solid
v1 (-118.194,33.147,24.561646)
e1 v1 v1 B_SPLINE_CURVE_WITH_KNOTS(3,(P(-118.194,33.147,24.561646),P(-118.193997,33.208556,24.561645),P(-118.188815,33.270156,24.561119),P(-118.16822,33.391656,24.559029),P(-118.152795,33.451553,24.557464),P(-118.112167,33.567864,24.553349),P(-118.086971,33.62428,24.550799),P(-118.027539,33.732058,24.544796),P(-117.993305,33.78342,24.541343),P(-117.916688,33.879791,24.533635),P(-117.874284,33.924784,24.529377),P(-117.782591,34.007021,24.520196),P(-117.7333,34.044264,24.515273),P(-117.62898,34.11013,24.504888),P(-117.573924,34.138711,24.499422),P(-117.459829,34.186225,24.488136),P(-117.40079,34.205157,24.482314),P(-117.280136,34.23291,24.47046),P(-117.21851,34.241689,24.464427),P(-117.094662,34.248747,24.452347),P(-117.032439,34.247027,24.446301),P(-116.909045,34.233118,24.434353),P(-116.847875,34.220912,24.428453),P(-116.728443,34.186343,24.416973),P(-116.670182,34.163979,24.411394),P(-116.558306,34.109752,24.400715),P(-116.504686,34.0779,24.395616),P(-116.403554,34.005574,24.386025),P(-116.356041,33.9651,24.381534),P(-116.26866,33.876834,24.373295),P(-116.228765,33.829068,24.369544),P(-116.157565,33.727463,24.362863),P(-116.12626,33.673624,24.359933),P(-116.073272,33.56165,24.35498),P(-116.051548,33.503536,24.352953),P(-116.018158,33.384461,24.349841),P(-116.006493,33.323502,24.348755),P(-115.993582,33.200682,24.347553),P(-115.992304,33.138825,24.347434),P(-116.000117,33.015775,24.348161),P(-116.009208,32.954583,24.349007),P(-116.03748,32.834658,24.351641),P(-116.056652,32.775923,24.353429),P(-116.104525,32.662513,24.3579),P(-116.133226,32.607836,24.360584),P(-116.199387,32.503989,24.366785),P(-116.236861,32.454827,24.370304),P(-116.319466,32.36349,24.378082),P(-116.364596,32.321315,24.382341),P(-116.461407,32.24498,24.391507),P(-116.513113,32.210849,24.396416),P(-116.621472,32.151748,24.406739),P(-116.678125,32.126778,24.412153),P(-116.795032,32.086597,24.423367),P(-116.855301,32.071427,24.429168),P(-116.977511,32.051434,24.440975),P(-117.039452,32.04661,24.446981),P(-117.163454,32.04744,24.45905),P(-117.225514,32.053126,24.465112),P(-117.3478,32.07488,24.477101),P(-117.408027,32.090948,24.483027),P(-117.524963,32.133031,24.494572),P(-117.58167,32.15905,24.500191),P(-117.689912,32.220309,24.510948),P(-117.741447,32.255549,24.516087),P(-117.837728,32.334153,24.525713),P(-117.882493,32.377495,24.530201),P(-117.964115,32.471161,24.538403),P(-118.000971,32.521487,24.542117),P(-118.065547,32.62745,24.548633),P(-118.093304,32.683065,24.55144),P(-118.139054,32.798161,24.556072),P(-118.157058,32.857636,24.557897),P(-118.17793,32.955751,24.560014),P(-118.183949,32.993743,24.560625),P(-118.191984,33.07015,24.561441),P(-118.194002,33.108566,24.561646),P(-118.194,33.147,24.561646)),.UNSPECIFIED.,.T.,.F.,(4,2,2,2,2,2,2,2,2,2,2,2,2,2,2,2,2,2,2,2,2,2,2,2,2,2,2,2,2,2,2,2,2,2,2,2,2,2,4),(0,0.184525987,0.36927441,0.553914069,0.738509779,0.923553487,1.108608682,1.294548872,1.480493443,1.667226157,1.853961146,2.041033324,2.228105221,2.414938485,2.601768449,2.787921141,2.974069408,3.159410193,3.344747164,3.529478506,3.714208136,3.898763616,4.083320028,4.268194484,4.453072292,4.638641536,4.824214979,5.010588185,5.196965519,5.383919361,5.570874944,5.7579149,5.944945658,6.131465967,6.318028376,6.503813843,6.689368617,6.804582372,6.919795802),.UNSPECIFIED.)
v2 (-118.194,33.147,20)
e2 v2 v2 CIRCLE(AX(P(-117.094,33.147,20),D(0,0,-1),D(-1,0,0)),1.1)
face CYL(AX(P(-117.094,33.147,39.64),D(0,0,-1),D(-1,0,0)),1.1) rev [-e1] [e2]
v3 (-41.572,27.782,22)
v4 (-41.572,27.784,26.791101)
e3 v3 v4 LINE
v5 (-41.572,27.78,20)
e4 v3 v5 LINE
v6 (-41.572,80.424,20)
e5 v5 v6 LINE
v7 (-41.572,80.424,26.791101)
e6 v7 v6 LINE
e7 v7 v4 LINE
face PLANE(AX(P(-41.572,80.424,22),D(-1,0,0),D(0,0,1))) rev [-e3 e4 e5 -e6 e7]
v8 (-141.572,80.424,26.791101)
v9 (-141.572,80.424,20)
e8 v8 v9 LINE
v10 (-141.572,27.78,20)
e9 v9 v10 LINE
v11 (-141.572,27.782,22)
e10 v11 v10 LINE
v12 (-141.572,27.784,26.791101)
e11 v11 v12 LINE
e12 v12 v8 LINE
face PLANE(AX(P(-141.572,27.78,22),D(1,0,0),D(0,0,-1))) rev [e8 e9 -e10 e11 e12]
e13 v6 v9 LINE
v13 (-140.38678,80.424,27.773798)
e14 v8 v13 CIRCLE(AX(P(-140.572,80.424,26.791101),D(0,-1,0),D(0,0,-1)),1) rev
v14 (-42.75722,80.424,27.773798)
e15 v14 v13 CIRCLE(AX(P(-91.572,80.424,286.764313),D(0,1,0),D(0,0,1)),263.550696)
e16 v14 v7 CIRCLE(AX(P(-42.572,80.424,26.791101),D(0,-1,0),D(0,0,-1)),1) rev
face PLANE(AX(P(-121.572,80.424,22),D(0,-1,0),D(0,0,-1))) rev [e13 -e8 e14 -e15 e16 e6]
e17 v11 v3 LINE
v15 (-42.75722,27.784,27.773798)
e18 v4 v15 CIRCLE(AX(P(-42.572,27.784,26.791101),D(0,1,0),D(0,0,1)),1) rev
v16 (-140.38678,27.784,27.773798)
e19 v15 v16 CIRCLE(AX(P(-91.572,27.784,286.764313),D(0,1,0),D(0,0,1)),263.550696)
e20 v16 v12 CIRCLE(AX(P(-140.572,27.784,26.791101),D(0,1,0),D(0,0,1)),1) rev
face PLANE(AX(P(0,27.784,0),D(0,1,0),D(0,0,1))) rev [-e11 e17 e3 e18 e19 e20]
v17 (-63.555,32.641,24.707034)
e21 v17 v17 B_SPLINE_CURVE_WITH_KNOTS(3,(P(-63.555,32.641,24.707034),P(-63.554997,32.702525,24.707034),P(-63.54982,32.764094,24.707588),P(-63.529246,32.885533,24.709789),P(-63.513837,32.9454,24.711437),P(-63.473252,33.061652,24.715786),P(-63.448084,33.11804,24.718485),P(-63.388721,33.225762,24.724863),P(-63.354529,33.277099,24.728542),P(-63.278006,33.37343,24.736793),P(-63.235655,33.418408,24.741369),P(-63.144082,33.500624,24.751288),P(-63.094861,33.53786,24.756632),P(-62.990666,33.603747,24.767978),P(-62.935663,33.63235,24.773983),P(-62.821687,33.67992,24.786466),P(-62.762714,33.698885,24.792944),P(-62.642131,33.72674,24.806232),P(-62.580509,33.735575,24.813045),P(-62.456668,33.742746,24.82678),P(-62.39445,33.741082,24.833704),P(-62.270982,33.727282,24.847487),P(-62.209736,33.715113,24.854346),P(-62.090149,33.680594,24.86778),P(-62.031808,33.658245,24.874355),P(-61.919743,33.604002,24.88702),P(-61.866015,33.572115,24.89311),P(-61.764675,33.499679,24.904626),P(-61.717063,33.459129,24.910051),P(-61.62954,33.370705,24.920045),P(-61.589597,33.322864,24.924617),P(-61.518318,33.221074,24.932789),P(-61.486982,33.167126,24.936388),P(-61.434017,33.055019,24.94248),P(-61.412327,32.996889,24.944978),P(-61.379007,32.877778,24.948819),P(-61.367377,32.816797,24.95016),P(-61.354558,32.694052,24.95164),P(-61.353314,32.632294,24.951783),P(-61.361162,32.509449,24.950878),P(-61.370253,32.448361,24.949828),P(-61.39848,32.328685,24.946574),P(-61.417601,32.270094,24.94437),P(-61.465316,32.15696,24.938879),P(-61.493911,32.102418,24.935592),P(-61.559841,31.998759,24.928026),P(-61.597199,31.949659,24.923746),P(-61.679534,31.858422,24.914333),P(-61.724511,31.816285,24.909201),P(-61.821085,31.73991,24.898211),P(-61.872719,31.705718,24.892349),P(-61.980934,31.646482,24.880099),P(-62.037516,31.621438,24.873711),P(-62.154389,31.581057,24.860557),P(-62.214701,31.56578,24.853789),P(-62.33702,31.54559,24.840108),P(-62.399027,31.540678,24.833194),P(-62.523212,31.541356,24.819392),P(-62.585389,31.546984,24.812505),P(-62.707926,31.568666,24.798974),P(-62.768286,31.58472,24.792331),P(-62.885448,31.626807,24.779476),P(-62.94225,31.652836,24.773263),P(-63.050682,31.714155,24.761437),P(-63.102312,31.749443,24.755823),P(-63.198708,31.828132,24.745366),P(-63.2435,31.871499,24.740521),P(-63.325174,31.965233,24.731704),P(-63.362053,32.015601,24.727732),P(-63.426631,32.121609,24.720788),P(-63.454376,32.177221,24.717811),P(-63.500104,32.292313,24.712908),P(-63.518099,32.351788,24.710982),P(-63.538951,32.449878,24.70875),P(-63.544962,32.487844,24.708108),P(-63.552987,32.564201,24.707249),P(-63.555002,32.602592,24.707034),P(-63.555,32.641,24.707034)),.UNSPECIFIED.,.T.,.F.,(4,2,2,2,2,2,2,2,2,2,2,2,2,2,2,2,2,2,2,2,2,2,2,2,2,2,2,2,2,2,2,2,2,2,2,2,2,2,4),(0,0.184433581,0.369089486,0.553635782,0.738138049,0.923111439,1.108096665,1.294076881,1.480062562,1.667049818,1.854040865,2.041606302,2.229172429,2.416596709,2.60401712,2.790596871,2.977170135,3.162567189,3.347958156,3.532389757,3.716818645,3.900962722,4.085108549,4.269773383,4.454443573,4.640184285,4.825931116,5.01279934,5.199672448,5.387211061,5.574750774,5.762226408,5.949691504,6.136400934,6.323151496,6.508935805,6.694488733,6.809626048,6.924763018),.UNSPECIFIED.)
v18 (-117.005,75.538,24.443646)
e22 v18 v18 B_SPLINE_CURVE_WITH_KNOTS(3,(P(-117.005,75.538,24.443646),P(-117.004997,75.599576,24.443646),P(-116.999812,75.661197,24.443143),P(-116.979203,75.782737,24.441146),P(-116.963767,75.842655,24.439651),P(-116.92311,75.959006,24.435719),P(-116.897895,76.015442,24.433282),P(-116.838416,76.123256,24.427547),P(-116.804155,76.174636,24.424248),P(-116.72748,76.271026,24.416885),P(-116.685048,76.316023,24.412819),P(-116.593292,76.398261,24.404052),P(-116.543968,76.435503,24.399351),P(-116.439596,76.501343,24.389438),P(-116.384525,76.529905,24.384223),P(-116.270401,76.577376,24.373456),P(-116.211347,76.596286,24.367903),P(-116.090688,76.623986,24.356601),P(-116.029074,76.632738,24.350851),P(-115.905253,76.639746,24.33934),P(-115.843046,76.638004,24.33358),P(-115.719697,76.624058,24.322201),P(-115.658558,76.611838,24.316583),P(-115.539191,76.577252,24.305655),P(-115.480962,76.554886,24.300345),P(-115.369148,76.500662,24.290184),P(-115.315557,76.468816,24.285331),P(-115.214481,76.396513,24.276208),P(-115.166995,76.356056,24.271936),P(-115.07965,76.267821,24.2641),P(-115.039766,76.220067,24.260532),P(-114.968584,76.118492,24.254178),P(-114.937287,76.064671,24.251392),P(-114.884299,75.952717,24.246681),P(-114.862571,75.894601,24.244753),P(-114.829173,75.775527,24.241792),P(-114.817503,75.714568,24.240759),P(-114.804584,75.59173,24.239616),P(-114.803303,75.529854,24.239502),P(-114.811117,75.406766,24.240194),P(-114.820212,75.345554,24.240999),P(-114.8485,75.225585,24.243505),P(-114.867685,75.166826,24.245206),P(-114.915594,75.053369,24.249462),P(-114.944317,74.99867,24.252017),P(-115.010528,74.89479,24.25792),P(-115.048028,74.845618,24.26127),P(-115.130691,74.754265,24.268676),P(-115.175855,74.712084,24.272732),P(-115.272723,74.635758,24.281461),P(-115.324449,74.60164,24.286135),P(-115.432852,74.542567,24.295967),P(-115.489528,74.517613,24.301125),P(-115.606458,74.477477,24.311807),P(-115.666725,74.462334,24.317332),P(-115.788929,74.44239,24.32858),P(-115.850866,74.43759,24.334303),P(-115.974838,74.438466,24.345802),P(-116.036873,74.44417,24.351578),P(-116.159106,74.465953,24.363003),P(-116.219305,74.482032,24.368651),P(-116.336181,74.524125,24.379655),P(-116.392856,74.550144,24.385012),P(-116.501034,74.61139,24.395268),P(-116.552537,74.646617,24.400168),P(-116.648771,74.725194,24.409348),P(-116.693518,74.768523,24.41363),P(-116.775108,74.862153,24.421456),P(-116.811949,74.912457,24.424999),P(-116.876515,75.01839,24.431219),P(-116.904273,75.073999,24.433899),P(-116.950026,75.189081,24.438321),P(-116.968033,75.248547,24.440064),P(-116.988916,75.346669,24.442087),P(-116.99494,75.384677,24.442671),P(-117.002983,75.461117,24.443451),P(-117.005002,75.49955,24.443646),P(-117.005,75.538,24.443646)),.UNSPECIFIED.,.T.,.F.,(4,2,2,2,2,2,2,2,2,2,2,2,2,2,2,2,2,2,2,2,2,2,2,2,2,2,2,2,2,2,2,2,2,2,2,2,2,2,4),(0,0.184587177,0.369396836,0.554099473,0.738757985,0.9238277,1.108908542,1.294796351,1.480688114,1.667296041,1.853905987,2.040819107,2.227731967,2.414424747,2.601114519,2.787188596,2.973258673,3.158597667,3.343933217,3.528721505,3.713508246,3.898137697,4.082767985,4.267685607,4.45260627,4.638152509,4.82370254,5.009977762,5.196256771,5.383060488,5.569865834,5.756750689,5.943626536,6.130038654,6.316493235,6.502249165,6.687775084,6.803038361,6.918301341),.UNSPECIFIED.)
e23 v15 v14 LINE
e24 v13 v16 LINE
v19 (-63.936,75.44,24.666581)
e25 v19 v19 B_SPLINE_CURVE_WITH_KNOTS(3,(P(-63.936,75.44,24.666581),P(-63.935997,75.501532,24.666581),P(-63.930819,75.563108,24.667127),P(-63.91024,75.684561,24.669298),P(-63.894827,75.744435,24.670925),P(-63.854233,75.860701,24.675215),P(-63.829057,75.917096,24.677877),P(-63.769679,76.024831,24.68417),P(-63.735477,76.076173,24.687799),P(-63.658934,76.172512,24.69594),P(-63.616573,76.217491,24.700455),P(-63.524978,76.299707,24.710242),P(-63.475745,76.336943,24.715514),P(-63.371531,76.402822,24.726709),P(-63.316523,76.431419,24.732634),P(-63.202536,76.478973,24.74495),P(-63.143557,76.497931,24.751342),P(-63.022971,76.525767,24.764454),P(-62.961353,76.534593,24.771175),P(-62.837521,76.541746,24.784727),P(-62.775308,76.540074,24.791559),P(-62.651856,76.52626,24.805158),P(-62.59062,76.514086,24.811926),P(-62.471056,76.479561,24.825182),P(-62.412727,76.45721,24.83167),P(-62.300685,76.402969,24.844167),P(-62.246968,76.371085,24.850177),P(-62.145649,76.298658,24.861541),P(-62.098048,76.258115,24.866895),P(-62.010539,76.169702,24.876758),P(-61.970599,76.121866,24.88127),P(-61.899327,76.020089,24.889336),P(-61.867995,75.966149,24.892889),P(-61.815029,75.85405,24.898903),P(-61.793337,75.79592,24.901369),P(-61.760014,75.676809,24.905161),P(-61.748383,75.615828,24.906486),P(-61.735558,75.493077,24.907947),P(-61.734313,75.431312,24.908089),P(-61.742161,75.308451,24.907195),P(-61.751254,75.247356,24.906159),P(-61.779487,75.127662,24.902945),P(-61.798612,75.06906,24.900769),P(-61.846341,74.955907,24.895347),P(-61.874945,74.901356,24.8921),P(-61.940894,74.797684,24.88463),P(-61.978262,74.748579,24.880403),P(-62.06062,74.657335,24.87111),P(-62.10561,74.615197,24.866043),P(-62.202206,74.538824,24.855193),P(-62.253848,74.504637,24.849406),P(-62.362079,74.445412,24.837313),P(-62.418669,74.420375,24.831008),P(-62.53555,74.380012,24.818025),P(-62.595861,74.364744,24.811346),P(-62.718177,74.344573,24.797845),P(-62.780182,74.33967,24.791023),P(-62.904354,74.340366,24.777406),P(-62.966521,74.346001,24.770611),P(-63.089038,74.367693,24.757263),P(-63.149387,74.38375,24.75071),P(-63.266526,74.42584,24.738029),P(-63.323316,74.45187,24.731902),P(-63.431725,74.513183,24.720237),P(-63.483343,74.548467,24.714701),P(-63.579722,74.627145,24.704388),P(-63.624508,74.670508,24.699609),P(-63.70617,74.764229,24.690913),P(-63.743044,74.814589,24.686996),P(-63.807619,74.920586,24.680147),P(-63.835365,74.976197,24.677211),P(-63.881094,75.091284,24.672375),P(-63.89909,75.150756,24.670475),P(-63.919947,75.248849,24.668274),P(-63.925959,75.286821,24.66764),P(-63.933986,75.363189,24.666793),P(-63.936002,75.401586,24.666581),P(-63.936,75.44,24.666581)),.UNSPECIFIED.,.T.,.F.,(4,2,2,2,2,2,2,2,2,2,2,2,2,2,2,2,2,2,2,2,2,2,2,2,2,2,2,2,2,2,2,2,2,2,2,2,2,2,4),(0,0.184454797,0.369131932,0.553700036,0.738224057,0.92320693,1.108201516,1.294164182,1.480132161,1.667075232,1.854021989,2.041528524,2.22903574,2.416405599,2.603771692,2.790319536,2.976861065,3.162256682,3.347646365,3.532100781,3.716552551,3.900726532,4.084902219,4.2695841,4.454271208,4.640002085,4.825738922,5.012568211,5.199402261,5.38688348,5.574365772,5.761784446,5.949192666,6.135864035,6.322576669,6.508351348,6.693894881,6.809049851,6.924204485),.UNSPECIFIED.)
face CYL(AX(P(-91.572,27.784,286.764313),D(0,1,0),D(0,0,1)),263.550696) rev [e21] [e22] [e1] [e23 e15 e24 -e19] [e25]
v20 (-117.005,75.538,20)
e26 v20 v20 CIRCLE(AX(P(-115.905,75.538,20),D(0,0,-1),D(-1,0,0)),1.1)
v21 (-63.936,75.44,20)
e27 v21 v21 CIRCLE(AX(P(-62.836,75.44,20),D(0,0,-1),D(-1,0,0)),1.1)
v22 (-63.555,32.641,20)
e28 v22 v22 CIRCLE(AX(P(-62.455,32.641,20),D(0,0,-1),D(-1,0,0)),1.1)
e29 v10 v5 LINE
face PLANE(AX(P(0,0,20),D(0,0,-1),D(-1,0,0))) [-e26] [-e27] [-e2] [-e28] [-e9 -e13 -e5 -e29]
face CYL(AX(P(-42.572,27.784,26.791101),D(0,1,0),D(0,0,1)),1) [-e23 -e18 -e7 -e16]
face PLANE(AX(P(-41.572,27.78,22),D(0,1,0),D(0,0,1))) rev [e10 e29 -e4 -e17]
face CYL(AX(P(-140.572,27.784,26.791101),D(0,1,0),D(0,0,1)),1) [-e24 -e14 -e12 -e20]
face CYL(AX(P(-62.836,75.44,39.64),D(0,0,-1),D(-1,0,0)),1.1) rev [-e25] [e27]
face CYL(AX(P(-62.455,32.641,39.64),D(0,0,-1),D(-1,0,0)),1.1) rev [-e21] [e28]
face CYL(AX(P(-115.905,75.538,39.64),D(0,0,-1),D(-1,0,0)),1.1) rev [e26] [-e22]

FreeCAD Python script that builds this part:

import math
import FreeCAD as App
import Part
import Sketcher


def edges_at(feature, points):
    """Names of the edges that pass closest to the given points."""
    edges = feature.Shape.Edges
    near = lambda p: min(range(len(edges)), key=lambda i: edges[i].distToShape(Part.Vertex(*p))[0])
    return sorted({f"Edge{near(p) + 1}" for p in points})


def add_polygon(sketch, points):
    """Adds a closed chain of lines whose ends are joined by coincident constraints."""
    first, n = sketch.GeometryCount, len(points)
    for a, b in zip(points, points[1:] + points[:1]):
        sketch.addGeometry(Part.LineSegment(App.Vector(*a, 0), App.Vector(*b, 0)), False)
    for i in range(n):
        sketch.addConstraint(Sketcher.Constraint("Coincident", first + i, 2, first + (i + 1) % n, 1))

doc = App.newDocument("Part")
body = doc.addObject("PartDesign::Body", "Body")

sketch1 = body.newObject("Sketcher::SketchObject", "Sketch")
sketch1.AttachmentSupport = (doc.getObject("XY_Plane"), [""])
sketch1.MapMode = "FlatFace"
sketch1.AttachmentOffset = App.Placement(App.Vector(0, 0, 20), App.Rotation())
add_polygon(sketch1, [(-42, 80), (-142, 80), (-142, 28), (-42, 28)])
sketch1.addConstraint(Sketcher.Constraint("Horizontal", 0))
sketch1.addConstraint(Sketcher.Constraint("Vertical", 1))
sketch1.addConstraint(Sketcher.Constraint("Horizontal", 2))
sketch1.addConstraint(Sketcher.Constraint("Vertical", 3))
sketch1.addConstraint(Sketcher.Constraint("DistanceX", 0, 2, 0, 1, 100.0))
sketch1.addConstraint(Sketcher.Constraint("DistanceY", 1, 2, 1, 1, 52.644))
sketch1.addConstraint(Sketcher.Constraint("DistanceY", -1, 1, 1, 2, 27.78))
sketch1.addConstraint(Sketcher.Constraint("DistanceX", 0, 2, -1, 1, 141.572))
pad1 = body.newObject("PartDesign::Pad", "Pad")
pad1.Profile = sketch1
pad1.Length = 2

sketch2 = body.newObject("Sketcher::SketchObject", "Sketch001")
sketch2.AttachmentSupport = (doc.getObject("XZ_Plane"), [""])
sketch2.MapMode = "FlatFace"
sketch2.AttachmentOffset = App.Placement(App.Vector(0, 0, -80.424), App.Rotation())
sketch2.addGeometry(Part.LineSegment(App.Vector(-42, 28, 0), App.Vector(-42, 22, 0)), False)
sketch2.addGeometry(Part.LineSegment(App.Vector(-42, 22, 0), App.Vector(-142, 22, 0)), False)
sketch2.addGeometry(Part.LineSegment(App.Vector(-142, 22, 0), App.Vector(-142, 28, 0)), False)
sketch2.addGeometry(Part.ArcOfCircle(Part.Circle(App.Vector(-92, 287, 0), App.Vector(0, 0, 1), 264), math.radians(-101), math.radians(-79)), False)
sketch2.addConstraint(Sketcher.Constraint("Coincident", 0, 2, 1, 1))
sketch2.addConstraint(Sketcher.Constraint("Coincident", 1, 2, 2, 1))
sketch2.addConstraint(Sketcher.Constraint("Coincident", 2, 2, 3, 1))
sketch2.addConstraint(Sketcher.Constraint("Coincident", 3, 2, 0, 1))
sketch2.addConstraint(Sketcher.Constraint("Vertical", 0))
sketch2.addConstraint(Sketcher.Constraint("Horizontal", 1))
sketch2.addConstraint(Sketcher.Constraint("Vertical", 2))
sketch2.addConstraint(Sketcher.Constraint("Horizontal", 2, 2, 3, 2))
sketch2.addConstraint(Sketcher.Constraint("DistanceX", 1, 2, 1, 1, 100.0))
sketch2.addConstraint(Sketcher.Constraint("DistanceY", 0, 2, 0, 1, 6.0))
sketch2.addConstraint(Sketcher.Constraint("DistanceY", -1, 1, 0, 2, 22.0))
sketch2.addConstraint(Sketcher.Constraint("DistanceX", 3, 3, -1, 1, 91.572))
sketch2.addConstraint(Sketcher.Constraint("Radius", 3, 263.550696))
pad2 = body.newObject("PartDesign::Pad", "Pad001")
pad2.Profile = sketch2
pad2.Length = 52.64

sketch3 = body.newObject("Sketcher::SketchObject", "Sketch002")
sketch3.AttachmentSupport = (doc.getObject("XY_Plane"), [""])
sketch3.MapMode = "FlatFace"
sketch3.AttachmentOffset = App.Placement(App.Vector(0, 0, 20), App.Rotation())
sketch3.addGeometry(Part.Circle(App.Vector(-62.5, 32.6, 0), App.Vector(0, 0, 1), 1.1), False)
sketch3.addConstraint(Sketcher.Constraint("Diameter", 0, 2.2))
sketch3.addConstraint(Sketcher.Constraint("DistanceX", 0, 3, -1, 1, 62.455))
sketch3.addConstraint(Sketcher.Constraint("DistanceY", -1, 1, 0, 3, 32.641))
pocket1 = body.newObject("PartDesign::Pocket", "Pocket")
pocket1.Profile = sketch3
pocket1.Length = 19.64
pocket1.Reversed = True

sketch4 = body.newObject("Sketcher::SketchObject", "Sketch003")
sketch4.AttachmentSupport = (doc.getObject("XY_Plane"), [""])
sketch4.MapMode = "FlatFace"
sketch4.AttachmentOffset = App.Placement(App.Vector(0, 0, 20), App.Rotation())
sketch4.addGeometry(Part.Circle(App.Vector(-62.8, 75.4, 0), App.Vector(0, 0, 1), 1.1), False)
sketch4.addConstraint(Sketcher.Constraint("Diameter", 0, 2.2))
sketch4.addConstraint(Sketcher.Constraint("DistanceY", -1, 1, 0, 3, 75.44))
sketch4.addConstraint(Sketcher.Constraint("DistanceX", 0, 3, -1, 1, 62.836))
pocket2 = body.newObject("PartDesign::Pocket", "Pocket001")
pocket2.Profile = sketch4
pocket2.Length = 19.64
pocket2.Reversed = True

sketch5 = body.newObject("Sketcher::SketchObject", "Sketch004")
sketch5.AttachmentSupport = (doc.getObject("XY_Plane"), [""])
sketch5.MapMode = "FlatFace"
sketch5.AttachmentOffset = App.Placement(App.Vector(0, 0, 20), App.Rotation())
sketch5.addGeometry(Part.Circle(App.Vector(-115.9, 75.5, 0), App.Vector(0, 0, 1), 1.1), False)
sketch5.addConstraint(Sketcher.Constraint("Diameter", 0, 2.2))
sketch5.addConstraint(Sketcher.Constraint("DistanceX", 0, 3, -1, 1, 115.905))
sketch5.addConstraint(Sketcher.Constraint("DistanceY", -1, 1, 0, 3, 75.538))
pocket3 = body.newObject("PartDesign::Pocket", "Pocket002")
pocket3.Profile = sketch5
pocket3.Length = 19.64
pocket3.Reversed = True

sketch6 = body.newObject("Sketcher::SketchObject", "Sketch005")
sketch6.AttachmentSupport = (doc.getObject("XY_Plane"), [""])
sketch6.MapMode = "FlatFace"
sketch6.AttachmentOffset = App.Placement(App.Vector(0, 0, 20), App.Rotation())
sketch6.addGeometry(Part.Circle(App.Vector(-117.1, 33.1, 0), App.Vector(0, 0, 1), 1.1), False)
sketch6.addConstraint(Sketcher.Constraint("Diameter", 0, 2.2))
sketch6.addConstraint(Sketcher.Constraint("DistanceX", 0, 3, -1, 1, 117.094))
sketch6.addConstraint(Sketcher.Constraint("DistanceY", -1, 1, 0, 3, 33.147))
pocket4 = body.newObject("PartDesign::Pocket", "Pocket003")
pocket4.Profile = sketch6
pocket4.Length = 19.64
pocket4.Reversed = True
doc.recompute()

fillet = body.newObject("PartDesign::Fillet", "Fillet")
fillet.Base = (pocket4, edges_at(pocket4, [(-41.572, 54.104, 28)]))
fillet.Radius = 1
doc.recompute()

fillet2 = body.newObject("PartDesign::Fillet", "Fillet001")
fillet2.Base = (fillet, edges_at(fillet, [(-141.572, 54.104, 28)]))
fillet2.Radius = 1

doc.recompute()
